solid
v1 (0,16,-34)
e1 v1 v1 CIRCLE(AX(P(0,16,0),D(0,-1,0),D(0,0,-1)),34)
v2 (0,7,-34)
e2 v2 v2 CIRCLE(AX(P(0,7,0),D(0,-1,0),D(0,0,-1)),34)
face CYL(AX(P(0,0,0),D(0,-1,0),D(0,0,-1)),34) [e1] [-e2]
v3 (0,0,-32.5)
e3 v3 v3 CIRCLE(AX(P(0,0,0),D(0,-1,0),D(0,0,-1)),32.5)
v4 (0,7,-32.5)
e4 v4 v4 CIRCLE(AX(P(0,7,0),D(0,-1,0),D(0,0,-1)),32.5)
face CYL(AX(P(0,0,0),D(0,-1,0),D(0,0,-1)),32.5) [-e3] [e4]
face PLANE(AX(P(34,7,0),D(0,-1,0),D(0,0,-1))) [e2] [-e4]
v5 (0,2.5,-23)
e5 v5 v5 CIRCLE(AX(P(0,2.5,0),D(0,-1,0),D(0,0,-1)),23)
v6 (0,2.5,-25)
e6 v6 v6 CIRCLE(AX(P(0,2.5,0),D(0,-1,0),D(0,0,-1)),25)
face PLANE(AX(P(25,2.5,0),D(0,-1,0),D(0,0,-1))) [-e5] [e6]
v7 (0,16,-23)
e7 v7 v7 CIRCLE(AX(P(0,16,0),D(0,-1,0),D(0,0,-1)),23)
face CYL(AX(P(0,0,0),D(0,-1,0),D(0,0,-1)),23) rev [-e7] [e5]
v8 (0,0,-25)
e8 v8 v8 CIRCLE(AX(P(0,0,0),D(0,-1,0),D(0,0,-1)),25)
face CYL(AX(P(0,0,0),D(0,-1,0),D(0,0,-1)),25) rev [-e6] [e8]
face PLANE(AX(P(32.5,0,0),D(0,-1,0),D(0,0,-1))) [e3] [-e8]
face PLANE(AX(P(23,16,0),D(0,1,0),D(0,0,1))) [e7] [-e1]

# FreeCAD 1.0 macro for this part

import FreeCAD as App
import Part
import Sketcher
Q = App.Units.Quantity

doc = App.newDocument("Part")
body = doc.addObject("PartDesign::Body", "Body")

sketch1 = body.newObject("Sketcher::SketchObject", "Sketch")
sketch1.AttachmentSupport = (doc.getObject("XY_Plane"), [""])
sketch1.MapMode = "FlatFace"
sketch1.addGeometry(Part.LineSegment(App.Vector(23, 16, 0), App.Vector(23, 2.5, 0)), False)
sketch1.addGeometry(Part.LineSegment(App.Vector(23, 2.5, 0), App.Vector(25, 2.5, 0)), False)
sketch1.addGeometry(Part.LineSegment(App.Vector(25, 2.5, 0), App.Vector(25, 0, 0)), False)
sketch1.addGeometry(Part.LineSegment(App.Vector(25, 0, 0), App.Vector(32.5, 0, 0)), False)
sketch1.addGeometry(Part.LineSegment(App.Vector(32.5, 0, 0), App.Vector(32.5, 7, 0)), False)
sketch1.addGeometry(Part.LineSegment(App.Vector(32.5, 7, 0), App.Vector(34, 7, 0)), False)
sketch1.addGeometry(Part.LineSegment(App.Vector(34, 7, 0), App.Vector(34, 16, 0)), False)
sketch1.addGeometry(Part.LineSegment(App.Vector(34, 16, 0), App.Vector(23, 16, 0)), False)
sketch1.addConstraint(Sketcher.Constraint("Coincident", 0, 2, 1, 1))
sketch1.addConstraint(Sketcher.Constraint("Coincident", 1, 2, 2, 1))
sketch1.addConstraint(Sketcher.Constraint("Coincident", 2, 2, 3, 1))
sketch1.addConstraint(Sketcher.Constraint("Coincident", 3, 2, 4, 1))
sketch1.addConstraint(Sketcher.Constraint("Coincident", 4, 2, 5, 1))
sketch1.addConstraint(Sketcher.Constraint("Coincident", 5, 2, 6, 1))
sketch1.addConstraint(Sketcher.Constraint("Coincident", 6, 2, 7, 1))
sketch1.addConstraint(Sketcher.Constraint("Coincident", 7, 2, 0, 1))
sketch1.addConstraint(Sketcher.Constraint("Vertical", 0))
sketch1.addConstraint(Sketcher.Constraint("Horizontal", 1))
sketch1.addConstraint(Sketcher.Constraint("Vertical", 2))
sketch1.addConstraint(Sketcher.Constraint("Horizontal", 3))
sketch1.addConstraint(Sketcher.Constraint("Vertical", 4))
sketch1.addConstraint(Sketcher.Constraint("Horizontal", 5))
sketch1.addConstraint(Sketcher.Constraint("Vertical", 6))
sketch1.addConstraint(Sketcher.Constraint("Horizontal", 7))
sketch1.addConstraint(Sketcher.Constraint("PointOnObject", 2, 2, -1))
sketch1.addConstraint(Sketcher.Constraint("DistanceX", 1, 1, 1, 2, Q("2 mm")))
sketch1.addConstraint(Sketcher.Constraint("DistanceX", 7, 2, 7, 1, Q("11 mm")))
sketch1.addConstraint(Sketcher.Constraint("DistanceY", 4, 1, 4, 2, Q("7 mm")))
sketch1.addConstraint(Sketcher.Constraint("DistanceY", 6, 1, 6, 2, Q("9 mm")))
sketch1.addConstraint(Sketcher.Constraint("DistanceX", 3, 1, 3, 2, Q("7.5 mm")))
sketch1.addConstraint(Sketcher.Constraint("DistanceY", 0, 2, 0, 1, Q("13.5 mm")))
sketch1.addConstraint(Sketcher.Constraint("DistanceX", -1, 1, 0, 2, Q("23 mm")))
revolution = body.newObject("PartDesign::Revolution", "Revolution")
revolution.Profile = sketch1
revolution.ReferenceAxis = (sketch1, ["V_Axis"])
revolution.Angle = 360

doc.recompute()
